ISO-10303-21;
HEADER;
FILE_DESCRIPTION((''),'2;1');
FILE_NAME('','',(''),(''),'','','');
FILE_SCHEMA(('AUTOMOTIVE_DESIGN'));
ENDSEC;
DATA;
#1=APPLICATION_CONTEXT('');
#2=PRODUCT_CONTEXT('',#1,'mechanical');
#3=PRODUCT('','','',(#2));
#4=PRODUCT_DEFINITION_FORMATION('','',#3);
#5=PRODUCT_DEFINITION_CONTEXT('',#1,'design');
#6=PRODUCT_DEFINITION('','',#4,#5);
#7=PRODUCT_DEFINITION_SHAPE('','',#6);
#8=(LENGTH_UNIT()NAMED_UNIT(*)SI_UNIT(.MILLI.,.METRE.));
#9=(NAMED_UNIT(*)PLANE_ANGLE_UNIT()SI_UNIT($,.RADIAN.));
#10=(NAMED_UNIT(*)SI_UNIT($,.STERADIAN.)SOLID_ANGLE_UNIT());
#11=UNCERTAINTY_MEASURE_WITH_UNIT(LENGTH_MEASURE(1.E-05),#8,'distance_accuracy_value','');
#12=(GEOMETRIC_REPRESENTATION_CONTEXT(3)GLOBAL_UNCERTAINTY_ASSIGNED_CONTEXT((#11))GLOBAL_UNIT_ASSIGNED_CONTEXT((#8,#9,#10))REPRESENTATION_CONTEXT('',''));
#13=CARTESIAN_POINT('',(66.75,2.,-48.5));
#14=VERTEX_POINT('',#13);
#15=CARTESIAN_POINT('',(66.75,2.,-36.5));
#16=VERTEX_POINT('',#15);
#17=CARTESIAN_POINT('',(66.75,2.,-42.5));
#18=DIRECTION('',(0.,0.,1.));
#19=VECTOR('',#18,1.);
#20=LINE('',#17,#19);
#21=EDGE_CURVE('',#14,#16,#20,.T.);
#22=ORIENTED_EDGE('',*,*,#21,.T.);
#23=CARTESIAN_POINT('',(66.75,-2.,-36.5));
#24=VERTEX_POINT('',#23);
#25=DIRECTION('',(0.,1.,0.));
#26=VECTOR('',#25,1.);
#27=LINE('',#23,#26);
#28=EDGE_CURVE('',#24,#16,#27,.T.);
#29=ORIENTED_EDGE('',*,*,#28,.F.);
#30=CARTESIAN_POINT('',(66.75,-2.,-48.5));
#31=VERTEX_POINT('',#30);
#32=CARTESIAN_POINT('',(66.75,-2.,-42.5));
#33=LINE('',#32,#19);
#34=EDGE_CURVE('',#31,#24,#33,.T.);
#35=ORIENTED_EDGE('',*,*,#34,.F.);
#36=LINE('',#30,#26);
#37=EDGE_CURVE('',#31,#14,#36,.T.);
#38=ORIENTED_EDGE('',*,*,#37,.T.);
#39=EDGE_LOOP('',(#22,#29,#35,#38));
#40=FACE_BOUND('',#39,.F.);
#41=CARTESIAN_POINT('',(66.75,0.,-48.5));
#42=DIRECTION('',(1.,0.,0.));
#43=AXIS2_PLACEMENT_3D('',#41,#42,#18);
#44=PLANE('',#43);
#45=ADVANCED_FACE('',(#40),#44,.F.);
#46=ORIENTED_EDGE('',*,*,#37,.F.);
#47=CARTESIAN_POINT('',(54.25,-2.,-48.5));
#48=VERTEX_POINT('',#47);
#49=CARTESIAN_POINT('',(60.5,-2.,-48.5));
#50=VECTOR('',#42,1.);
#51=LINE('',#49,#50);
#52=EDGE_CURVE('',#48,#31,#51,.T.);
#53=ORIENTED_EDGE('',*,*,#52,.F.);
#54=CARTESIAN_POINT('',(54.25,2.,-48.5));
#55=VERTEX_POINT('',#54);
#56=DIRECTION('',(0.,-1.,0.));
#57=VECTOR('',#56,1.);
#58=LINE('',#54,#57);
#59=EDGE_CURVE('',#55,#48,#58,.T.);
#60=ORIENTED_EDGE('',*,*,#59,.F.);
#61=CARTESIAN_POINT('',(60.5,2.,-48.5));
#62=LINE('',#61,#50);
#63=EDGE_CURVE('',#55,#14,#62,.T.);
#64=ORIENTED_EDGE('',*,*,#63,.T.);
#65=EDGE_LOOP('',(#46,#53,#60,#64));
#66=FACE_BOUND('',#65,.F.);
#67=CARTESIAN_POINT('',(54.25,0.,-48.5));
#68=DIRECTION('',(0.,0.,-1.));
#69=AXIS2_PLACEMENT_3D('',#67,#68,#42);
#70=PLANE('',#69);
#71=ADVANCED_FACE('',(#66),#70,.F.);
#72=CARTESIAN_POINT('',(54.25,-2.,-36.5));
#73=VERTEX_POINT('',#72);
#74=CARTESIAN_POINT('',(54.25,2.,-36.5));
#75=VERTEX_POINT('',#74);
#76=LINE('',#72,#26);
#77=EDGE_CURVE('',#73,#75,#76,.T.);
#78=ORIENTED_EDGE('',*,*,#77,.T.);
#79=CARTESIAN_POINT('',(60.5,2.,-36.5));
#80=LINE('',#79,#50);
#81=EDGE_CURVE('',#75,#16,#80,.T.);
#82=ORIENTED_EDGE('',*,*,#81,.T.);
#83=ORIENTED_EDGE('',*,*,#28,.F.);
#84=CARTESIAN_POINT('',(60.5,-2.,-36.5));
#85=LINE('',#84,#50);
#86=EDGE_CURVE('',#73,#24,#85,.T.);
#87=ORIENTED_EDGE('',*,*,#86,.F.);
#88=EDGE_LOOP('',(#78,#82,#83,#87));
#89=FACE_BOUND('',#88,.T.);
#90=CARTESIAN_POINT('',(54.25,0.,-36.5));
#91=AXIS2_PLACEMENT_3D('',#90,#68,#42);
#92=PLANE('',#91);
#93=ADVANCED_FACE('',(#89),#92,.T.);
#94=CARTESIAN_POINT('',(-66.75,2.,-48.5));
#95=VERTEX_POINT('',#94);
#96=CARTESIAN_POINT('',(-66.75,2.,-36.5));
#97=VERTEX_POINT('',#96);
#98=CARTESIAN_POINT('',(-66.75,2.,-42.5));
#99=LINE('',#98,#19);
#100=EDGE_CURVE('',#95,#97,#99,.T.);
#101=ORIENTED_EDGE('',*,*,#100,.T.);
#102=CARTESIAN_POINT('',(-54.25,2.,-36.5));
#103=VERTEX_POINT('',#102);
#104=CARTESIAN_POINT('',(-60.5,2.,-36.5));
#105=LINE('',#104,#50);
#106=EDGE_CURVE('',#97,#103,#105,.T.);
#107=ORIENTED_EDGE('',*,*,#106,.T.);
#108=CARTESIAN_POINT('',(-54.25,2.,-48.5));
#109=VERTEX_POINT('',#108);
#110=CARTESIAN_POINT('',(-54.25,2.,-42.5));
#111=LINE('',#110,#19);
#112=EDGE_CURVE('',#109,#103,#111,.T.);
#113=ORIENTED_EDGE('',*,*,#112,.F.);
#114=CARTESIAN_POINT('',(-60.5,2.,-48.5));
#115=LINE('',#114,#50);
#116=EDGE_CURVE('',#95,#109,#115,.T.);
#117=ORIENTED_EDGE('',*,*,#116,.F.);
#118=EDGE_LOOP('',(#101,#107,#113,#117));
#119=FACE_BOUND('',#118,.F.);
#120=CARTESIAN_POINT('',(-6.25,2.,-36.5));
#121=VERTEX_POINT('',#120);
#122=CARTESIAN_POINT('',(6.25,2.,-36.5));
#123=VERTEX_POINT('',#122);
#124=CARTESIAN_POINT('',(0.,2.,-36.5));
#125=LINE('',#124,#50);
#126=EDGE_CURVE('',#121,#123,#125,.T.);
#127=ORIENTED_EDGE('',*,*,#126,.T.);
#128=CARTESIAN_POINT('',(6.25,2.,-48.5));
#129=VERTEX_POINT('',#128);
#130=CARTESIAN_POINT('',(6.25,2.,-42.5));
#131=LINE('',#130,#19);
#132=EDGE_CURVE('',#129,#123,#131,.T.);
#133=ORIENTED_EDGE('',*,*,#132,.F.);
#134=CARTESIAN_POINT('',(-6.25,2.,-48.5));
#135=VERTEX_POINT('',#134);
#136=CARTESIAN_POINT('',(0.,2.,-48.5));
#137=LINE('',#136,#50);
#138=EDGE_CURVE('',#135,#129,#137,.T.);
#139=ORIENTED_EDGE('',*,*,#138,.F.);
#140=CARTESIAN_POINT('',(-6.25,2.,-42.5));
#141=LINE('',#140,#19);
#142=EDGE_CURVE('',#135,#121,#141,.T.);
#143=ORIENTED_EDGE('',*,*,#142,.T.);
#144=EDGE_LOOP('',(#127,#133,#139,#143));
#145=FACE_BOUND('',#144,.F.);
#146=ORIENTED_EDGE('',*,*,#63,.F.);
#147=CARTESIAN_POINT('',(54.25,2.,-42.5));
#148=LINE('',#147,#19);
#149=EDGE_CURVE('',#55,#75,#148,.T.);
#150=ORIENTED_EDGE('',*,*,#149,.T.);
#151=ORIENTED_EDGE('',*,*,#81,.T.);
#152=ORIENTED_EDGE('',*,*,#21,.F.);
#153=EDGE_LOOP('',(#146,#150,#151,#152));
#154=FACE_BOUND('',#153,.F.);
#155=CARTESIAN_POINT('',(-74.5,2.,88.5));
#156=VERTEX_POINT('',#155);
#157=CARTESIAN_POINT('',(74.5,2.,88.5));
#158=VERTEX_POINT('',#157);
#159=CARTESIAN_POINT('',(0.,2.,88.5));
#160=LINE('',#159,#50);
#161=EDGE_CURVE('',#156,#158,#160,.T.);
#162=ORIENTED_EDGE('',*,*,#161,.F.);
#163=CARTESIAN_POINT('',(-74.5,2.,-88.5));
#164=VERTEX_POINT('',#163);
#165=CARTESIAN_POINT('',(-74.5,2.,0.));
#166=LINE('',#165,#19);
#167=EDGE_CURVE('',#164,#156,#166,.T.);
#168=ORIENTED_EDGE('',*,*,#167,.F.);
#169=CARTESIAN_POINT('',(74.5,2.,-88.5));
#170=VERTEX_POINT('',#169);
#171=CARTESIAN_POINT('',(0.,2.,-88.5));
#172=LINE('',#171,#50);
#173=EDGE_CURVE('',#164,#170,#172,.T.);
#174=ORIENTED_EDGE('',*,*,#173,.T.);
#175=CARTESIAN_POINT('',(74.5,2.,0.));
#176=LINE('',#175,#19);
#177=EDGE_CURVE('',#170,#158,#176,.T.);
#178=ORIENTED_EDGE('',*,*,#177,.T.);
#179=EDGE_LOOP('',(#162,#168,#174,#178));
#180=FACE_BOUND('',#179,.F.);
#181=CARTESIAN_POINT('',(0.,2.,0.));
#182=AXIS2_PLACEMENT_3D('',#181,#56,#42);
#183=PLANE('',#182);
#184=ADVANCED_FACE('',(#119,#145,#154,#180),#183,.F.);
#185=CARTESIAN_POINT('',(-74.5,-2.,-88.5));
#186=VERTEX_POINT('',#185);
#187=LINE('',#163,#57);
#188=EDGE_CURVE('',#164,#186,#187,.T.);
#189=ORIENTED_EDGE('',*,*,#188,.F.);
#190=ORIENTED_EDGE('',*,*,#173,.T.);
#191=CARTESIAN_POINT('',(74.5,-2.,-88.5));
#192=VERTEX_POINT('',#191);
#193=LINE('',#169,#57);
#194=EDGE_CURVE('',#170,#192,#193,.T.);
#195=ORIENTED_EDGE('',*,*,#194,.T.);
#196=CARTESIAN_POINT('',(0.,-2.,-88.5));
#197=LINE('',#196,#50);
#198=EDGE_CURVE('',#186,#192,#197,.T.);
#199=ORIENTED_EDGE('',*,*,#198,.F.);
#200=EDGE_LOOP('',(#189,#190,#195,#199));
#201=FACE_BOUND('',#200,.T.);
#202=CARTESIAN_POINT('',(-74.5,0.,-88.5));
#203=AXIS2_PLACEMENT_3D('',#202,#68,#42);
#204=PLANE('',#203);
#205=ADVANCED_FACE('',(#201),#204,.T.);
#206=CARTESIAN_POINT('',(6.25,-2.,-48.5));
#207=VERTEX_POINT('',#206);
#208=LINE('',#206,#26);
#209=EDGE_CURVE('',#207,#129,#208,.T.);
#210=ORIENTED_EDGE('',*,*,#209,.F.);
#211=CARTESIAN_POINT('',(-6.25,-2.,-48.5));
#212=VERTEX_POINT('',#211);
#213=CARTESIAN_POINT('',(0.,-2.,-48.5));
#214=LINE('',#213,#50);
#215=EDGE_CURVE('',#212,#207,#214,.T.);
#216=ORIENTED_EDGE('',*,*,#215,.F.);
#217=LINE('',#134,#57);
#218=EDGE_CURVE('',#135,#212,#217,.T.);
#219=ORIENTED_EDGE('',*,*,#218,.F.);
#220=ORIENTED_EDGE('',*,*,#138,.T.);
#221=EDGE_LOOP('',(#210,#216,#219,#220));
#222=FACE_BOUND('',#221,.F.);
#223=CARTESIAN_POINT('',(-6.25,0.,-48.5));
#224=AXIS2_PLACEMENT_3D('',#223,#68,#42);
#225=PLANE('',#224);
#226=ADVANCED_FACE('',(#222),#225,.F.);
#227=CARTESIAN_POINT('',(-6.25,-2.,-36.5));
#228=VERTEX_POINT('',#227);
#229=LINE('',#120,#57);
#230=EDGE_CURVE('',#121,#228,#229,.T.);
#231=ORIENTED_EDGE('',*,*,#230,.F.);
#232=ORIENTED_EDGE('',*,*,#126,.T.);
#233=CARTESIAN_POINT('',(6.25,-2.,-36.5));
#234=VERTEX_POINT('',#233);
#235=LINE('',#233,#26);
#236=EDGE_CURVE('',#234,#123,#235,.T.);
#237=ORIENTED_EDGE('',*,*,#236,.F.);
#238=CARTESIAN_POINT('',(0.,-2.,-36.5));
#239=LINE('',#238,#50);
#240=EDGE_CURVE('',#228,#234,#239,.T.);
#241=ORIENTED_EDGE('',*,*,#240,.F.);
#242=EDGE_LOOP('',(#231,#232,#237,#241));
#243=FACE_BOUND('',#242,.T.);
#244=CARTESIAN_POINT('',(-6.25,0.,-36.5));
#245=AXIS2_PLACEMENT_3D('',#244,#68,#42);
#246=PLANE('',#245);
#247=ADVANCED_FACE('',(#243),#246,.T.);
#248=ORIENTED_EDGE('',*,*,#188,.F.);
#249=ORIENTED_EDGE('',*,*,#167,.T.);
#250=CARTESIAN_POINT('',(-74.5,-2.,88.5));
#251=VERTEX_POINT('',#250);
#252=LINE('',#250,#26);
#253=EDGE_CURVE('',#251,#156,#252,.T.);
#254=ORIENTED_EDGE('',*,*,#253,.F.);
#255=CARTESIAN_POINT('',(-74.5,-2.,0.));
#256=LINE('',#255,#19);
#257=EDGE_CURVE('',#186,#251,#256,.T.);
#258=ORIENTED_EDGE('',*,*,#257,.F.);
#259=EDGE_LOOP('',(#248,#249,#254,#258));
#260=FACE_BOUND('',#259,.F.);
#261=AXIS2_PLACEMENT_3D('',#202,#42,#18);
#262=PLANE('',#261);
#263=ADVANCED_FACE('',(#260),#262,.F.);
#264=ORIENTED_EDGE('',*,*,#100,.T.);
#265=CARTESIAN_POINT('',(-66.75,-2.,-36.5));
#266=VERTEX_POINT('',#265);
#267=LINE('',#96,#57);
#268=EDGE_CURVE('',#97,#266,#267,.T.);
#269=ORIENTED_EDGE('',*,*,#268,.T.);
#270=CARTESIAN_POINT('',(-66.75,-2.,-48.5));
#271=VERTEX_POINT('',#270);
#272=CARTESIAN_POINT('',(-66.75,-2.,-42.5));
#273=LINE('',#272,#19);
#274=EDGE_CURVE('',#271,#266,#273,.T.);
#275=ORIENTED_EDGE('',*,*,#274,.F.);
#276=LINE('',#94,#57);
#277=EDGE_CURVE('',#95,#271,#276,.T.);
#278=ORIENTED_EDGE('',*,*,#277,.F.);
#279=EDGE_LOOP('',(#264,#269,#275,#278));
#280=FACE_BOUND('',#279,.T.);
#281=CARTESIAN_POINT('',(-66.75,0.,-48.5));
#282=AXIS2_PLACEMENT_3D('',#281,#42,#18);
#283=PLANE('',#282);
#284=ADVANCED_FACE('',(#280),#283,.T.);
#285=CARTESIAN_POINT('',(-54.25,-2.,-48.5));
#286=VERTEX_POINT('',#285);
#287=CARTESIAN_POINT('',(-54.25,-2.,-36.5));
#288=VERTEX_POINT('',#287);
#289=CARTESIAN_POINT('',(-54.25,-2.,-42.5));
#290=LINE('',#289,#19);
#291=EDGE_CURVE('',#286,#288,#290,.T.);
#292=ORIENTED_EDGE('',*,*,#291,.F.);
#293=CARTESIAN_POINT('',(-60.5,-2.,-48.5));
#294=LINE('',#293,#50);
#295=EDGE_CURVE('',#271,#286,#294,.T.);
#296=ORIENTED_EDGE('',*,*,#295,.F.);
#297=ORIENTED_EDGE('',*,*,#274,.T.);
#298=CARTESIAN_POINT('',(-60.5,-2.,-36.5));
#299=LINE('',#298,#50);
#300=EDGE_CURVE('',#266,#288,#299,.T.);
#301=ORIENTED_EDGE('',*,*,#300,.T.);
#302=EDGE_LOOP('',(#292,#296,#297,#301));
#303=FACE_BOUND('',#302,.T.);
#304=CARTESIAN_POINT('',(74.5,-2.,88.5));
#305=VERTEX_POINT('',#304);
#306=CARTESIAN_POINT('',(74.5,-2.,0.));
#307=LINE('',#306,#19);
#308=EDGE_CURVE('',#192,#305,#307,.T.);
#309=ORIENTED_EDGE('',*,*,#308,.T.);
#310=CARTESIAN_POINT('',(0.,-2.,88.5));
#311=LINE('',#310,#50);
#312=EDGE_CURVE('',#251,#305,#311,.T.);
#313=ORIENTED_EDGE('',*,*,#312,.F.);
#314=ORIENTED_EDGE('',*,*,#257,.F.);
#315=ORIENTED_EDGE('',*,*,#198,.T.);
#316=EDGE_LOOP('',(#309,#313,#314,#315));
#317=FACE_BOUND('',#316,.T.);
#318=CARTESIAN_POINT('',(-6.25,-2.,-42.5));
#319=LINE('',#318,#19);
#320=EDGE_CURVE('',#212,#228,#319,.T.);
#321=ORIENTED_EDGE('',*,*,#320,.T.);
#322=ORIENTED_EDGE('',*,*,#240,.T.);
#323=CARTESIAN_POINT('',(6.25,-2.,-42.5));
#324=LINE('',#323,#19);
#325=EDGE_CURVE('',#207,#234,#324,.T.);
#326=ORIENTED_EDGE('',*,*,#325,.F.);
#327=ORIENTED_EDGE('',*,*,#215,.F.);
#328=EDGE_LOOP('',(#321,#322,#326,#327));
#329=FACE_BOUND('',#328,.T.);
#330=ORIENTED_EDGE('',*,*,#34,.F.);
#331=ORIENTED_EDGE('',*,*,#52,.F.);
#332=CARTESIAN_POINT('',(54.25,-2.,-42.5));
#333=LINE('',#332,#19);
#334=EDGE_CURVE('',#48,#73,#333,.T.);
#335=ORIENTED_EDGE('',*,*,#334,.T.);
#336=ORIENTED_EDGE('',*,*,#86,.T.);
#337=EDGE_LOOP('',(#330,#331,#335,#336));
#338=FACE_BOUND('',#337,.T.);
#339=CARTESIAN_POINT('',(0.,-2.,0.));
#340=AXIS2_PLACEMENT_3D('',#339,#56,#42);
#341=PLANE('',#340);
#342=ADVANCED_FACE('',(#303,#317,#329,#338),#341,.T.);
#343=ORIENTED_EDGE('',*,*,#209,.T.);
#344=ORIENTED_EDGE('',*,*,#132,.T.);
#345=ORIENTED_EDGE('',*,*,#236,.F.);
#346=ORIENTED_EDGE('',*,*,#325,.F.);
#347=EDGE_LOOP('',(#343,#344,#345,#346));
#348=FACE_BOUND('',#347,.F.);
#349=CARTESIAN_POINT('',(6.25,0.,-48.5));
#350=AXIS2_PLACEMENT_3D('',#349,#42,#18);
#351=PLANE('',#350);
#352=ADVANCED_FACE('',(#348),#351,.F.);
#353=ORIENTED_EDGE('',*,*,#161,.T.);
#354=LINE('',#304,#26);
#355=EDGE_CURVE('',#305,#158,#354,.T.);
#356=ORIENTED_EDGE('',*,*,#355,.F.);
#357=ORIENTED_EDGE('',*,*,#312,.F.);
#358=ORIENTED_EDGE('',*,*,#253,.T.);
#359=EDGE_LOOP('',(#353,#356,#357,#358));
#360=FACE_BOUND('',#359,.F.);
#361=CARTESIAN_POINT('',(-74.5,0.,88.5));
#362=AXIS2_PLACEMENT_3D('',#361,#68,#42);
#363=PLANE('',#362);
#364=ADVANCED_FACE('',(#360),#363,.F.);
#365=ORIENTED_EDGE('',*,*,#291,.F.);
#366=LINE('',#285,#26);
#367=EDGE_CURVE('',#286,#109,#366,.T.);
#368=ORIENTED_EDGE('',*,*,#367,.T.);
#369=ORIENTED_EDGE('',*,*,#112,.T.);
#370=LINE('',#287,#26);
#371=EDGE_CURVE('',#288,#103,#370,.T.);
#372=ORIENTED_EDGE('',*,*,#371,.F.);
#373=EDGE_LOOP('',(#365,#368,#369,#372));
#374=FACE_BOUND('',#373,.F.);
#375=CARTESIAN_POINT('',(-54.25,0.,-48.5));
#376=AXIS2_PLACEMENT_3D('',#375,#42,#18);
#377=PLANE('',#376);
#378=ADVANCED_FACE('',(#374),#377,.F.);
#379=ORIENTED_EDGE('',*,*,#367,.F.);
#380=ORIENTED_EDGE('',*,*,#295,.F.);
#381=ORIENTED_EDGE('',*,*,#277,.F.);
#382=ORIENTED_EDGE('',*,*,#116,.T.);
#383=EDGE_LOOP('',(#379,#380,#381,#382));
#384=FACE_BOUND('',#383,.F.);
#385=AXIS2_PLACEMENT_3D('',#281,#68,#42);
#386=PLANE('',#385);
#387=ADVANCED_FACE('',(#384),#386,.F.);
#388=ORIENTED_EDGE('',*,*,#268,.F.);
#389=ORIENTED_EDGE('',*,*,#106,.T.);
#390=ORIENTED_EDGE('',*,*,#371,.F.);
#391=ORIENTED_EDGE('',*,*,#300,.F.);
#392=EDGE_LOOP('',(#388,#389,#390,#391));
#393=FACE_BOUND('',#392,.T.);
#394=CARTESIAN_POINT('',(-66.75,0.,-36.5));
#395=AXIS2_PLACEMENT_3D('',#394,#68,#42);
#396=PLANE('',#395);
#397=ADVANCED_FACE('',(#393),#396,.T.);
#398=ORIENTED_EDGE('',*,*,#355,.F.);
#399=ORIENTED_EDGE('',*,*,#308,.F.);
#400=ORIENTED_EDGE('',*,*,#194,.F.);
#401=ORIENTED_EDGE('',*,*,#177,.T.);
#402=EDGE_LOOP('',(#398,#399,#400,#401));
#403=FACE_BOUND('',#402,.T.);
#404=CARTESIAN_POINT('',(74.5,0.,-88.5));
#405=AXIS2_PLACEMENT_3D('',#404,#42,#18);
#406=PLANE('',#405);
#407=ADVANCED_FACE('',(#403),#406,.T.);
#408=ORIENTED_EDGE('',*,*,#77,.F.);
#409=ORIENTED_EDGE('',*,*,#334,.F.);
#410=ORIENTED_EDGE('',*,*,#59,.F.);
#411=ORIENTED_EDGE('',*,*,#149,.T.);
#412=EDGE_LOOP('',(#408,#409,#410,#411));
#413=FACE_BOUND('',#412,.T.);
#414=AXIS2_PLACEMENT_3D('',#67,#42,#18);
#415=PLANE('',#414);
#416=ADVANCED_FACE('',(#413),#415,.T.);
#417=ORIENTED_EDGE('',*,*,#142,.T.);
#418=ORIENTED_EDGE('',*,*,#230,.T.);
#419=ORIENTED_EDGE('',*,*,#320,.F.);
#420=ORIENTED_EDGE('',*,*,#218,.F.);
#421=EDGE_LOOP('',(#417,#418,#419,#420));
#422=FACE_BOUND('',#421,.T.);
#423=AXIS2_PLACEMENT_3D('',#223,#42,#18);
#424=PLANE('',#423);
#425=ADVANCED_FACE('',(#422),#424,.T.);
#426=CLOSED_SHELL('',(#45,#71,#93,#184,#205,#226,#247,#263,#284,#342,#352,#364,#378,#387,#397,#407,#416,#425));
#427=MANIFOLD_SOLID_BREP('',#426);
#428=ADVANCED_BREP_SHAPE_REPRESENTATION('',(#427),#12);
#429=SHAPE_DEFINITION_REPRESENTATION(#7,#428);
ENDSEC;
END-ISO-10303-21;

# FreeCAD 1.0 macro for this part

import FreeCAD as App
import Part
import Sketcher

V = App.Vector
Q = App.Units.Quantity


def add_polygon(sketch, points):
    """Adds a closed chain of lines whose ends are joined by coincident constraints."""
    first, n = sketch.GeometryCount, len(points)
    for a, b in zip(points, points[1:] + points[:1]):
        sketch.addGeometry(Part.LineSegment(App.Vector(*a, 0), App.Vector(*b, 0)), False)
    for i in range(n):
        sketch.addConstraint(Sketcher.Constraint("Coincident", first + i, 2, first + (i + 1) % n, 1))

doc = App.newDocument("Part")
body = doc.addObject("PartDesign::Body", "Body")

sketch1 = body.newObject("Sketcher::SketchObject", "Sketch")
sketch1.AttachmentSupport = (doc.getObject("XZ_Plane"), [""])
sketch1.MapMode = "FlatFace"
add_polygon(sketch1, [(-74, 88), (-74, -88), (74, -88), (74, 88)])
add_polygon(sketch1, [(-54, -48), (-67, -48), (-67, -36), (-54, -36)])
add_polygon(sketch1, [(6, -48), (-6, -48), (-6, -36), (6, -36)])
add_polygon(sketch1, [(67, -48), (54, -48), (54, -36), (67, -36)])
sketch1.addConstraint([
    Sketcher.Constraint("Vertical", 0),
    Sketcher.Constraint("Horizontal", 1),
    Sketcher.Constraint("Vertical", 2),
    Sketcher.Constraint("Horizontal", 3),
    Sketcher.Constraint("Horizontal", 4),
    Sketcher.Constraint("Vertical", 5),
    Sketcher.Constraint("Horizontal", 6),
    Sketcher.Constraint("Vertical", 7),
    Sketcher.Constraint("Horizontal", 8),
    Sketcher.Constraint("Vertical", 9),
    Sketcher.Constraint("Horizontal", 10),
    Sketcher.Constraint("Vertical", 11),
    Sketcher.Constraint("Horizontal", 12),
    Sketcher.Constraint("Vertical", 13),
    Sketcher.Constraint("Horizontal", 14),
    Sketcher.Constraint("Vertical", 15),
    Sketcher.Constraint("Symmetric", 0, 2, 2, 2, -1, 1),
    Sketcher.Constraint("Symmetric", 7, 2, 12, 2, -2),
    Sketcher.Constraint("Symmetric", 5, 2, 14, 2, -2),
    Sketcher.Constraint("Horizontal", 7, 2, 8, 2),
    Sketcher.Constraint("Horizontal", 6, 2, 9, 2),
    Sketcher.Constraint("Equal", 6, 8),
    Sketcher.Constraint("DistanceX", 1, 1, 1, 2, Q("149 mm")),
    Sketcher.Constraint("DistanceY", 0, 2, 0, 1, Q("177 mm")),
    Sketcher.Constraint("DistanceY", 5, 1, 5, 2, Q("12 mm")),
    Sketcher.Constraint("DistanceX", 4, 2, 4, 1, Q("12.5 mm")),
    Sketcher.Constraint("DistanceY", 0, 2, 4, 2, Q("40 mm")),
    Sketcher.Constraint("DistanceX", 7, 2, 8, 2, Q("48 mm")),
    Sketcher.Constraint("DistanceX", 11, 2, 12, 2, Q("48 mm")),
])
pad1 = body.newObject("PartDesign::Pad", "Pad")
pad1.Profile = sketch1
pad1.Type = "TwoLengths"
pad1.Length = 2
pad1.Length2 = 2

doc.recompute()
